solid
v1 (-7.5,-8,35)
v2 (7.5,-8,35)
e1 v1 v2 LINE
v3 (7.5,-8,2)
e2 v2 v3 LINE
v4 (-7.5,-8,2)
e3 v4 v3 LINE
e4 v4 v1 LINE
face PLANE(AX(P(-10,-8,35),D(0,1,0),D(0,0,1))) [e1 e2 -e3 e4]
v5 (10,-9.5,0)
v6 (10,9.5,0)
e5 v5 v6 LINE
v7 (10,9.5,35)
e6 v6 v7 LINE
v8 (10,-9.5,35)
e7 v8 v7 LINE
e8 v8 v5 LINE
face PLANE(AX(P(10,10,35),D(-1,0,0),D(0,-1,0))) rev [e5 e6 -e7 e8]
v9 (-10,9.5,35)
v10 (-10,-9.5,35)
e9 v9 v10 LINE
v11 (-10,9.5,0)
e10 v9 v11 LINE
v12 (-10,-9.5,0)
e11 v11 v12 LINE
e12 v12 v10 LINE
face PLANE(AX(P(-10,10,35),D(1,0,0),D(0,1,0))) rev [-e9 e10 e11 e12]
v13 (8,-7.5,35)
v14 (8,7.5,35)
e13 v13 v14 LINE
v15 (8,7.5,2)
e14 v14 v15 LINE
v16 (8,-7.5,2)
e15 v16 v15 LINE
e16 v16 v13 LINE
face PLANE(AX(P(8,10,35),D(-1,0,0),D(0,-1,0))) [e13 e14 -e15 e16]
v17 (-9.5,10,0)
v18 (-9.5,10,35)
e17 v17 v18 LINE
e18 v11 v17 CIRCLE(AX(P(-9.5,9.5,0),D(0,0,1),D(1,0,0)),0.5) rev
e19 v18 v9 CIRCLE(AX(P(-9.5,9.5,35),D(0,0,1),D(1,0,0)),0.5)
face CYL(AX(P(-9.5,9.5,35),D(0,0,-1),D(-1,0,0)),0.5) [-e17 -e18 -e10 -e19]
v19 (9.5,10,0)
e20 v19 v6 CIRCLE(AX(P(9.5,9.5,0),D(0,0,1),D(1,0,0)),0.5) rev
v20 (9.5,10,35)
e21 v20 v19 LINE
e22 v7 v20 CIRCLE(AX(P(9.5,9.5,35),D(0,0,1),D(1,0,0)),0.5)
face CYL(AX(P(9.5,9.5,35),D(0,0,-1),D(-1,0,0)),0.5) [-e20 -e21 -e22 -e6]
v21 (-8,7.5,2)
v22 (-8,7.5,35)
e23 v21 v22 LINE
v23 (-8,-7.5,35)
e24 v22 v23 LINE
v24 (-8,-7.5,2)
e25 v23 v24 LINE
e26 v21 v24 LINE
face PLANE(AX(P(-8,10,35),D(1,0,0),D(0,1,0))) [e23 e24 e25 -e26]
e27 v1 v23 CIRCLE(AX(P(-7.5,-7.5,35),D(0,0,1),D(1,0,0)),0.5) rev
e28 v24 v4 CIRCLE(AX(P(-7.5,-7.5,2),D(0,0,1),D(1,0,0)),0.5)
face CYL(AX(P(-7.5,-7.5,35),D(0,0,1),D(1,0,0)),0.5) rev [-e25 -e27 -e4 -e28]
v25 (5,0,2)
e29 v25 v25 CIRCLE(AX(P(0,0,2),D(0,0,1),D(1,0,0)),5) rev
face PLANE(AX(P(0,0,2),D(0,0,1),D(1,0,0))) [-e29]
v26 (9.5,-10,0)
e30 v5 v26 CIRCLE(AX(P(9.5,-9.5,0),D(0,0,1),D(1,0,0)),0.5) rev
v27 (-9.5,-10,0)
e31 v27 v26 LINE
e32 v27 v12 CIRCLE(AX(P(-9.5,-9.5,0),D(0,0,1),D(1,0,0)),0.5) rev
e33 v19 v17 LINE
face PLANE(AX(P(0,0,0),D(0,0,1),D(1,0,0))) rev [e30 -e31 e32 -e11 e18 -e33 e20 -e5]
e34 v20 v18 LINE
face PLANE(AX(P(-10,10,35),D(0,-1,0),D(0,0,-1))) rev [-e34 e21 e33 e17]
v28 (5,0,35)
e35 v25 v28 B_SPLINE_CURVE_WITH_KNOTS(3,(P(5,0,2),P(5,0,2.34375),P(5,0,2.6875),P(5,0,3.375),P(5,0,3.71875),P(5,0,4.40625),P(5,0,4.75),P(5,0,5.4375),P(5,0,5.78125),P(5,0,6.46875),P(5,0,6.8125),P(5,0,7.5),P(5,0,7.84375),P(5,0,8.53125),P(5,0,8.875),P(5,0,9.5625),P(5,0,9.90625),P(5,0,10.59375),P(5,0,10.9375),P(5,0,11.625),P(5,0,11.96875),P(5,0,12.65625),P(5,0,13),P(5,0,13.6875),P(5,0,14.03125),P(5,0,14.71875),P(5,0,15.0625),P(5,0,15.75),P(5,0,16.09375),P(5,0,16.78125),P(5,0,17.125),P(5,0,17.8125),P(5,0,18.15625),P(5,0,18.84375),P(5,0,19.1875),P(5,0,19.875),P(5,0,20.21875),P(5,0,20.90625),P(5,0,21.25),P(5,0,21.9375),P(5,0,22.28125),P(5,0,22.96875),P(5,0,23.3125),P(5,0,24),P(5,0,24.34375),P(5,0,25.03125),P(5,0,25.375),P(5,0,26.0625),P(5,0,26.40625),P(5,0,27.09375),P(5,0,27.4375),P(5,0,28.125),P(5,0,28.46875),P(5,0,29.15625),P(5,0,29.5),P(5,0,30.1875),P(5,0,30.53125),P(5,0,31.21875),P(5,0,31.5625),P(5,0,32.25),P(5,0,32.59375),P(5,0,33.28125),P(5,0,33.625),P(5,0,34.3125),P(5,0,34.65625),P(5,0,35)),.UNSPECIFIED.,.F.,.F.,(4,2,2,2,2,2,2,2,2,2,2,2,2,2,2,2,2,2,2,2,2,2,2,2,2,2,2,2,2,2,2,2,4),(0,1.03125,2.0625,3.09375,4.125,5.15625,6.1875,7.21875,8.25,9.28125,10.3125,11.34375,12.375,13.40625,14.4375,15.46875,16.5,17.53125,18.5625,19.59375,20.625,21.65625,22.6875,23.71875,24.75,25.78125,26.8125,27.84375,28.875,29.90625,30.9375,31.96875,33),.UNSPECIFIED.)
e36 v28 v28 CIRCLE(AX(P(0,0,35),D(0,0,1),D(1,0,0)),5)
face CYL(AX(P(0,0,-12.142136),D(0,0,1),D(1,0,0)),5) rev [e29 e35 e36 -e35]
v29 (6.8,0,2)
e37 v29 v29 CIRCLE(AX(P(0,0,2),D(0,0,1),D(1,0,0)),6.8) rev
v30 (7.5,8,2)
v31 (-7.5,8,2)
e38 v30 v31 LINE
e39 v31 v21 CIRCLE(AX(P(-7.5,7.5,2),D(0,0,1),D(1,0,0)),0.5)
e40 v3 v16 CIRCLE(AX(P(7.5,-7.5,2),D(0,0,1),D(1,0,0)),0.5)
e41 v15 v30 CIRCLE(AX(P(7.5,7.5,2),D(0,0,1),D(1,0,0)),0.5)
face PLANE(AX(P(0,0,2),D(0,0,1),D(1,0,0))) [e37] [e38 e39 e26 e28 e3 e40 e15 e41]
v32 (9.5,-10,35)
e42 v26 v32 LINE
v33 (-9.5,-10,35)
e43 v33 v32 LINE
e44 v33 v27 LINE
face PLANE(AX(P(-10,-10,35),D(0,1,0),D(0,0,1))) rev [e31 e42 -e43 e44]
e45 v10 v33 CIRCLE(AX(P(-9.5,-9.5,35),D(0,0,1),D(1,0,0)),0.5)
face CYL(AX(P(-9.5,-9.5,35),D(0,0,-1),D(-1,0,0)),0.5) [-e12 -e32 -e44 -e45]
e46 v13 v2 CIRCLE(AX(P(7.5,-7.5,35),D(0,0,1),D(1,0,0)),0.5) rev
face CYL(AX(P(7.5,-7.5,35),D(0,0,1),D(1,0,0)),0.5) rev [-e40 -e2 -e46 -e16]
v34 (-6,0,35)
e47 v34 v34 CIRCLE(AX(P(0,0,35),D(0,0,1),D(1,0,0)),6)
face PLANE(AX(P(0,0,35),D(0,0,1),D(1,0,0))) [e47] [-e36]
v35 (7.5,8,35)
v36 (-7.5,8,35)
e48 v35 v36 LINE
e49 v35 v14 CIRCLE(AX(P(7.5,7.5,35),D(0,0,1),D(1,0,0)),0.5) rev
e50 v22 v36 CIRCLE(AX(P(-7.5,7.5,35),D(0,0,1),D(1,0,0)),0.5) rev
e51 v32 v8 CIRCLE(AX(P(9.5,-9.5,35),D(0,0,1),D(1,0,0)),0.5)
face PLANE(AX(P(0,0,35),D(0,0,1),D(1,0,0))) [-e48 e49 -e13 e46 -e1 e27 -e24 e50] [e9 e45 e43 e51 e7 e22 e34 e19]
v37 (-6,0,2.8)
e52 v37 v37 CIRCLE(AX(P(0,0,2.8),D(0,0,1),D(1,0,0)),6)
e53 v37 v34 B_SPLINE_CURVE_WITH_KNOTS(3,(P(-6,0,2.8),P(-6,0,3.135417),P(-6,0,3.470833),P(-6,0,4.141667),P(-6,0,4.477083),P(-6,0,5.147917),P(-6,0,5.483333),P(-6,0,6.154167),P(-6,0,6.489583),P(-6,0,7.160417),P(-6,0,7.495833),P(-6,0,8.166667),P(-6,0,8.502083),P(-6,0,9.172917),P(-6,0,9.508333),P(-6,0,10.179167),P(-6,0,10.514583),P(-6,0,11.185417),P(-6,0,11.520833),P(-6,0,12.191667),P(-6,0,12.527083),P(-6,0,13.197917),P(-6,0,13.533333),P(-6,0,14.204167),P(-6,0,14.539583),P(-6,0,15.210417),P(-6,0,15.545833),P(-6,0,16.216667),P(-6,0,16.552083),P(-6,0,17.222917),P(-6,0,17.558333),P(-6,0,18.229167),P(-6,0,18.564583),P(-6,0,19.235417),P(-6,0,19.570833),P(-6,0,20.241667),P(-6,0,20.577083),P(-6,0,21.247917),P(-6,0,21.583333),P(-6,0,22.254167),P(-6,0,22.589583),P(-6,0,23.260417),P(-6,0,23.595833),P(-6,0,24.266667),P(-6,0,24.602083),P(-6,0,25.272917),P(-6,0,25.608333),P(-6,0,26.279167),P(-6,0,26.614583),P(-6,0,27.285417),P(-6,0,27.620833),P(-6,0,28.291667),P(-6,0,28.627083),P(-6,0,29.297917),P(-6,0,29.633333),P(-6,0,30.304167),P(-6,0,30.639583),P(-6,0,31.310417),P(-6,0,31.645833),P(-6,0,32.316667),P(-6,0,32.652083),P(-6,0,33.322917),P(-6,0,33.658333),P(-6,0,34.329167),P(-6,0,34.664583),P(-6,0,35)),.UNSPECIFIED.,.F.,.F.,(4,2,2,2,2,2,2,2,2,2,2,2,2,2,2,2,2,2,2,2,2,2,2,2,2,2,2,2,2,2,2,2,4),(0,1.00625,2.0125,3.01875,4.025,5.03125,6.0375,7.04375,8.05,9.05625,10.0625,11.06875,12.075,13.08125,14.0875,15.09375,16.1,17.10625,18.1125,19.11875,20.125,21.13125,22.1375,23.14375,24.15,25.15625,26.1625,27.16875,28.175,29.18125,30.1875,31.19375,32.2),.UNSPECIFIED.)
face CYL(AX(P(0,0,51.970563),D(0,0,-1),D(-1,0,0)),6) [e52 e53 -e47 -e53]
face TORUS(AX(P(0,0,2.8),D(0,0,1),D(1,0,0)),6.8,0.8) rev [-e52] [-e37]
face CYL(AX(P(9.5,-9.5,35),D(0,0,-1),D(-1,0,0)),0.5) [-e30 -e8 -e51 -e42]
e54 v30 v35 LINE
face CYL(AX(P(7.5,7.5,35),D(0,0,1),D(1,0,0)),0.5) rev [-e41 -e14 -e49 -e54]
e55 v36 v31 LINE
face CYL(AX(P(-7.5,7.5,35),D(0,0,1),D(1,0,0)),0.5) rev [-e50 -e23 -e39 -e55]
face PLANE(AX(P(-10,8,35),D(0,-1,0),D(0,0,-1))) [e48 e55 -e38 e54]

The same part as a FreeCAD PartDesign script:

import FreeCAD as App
import Part
import Sketcher
Q = App.Units.Quantity


def edges_at(feature, points):
    """Names of the edges that pass closest to the given points."""
    edges = feature.Shape.Edges
    near = lambda p: min(range(len(edges)), key=lambda i: edges[i].distToShape(Part.Vertex(*p))[0])
    return sorted({f"Edge{near(p) + 1}" for p in points})


def faces_at(feature, points):
    """Names of the faces that lie closest to the given points."""
    faces = feature.Shape.Faces
    near = lambda p: min(range(len(faces)), key=lambda i: faces[i].distToShape(Part.Vertex(*p))[0])
    return sorted({f"Face{near(p) + 1}" for p in points})

doc = App.newDocument("Part")
body = doc.addObject("PartDesign::Body", "Body")

# Sketch on XY plane
sketch1 = body.newObject("Sketcher::SketchObject", "Sketch")
sketch1.AttachmentSupport = (doc.getObject("XY_Plane"), [""])
sketch1.MapMode = "FlatFace"
sketch1.addGeometry([
    Part.LineSegment(App.Vector(-10, 10, 0), App.Vector(-10, -10, 0)),
    Part.LineSegment(App.Vector(-10, -10, 0), App.Vector(10, -10, 0)),
    Part.LineSegment(App.Vector(10, -10, 0), App.Vector(10, 10, 0)),
    Part.LineSegment(App.Vector(10, 10, 0), App.Vector(-10, 10, 0)),
], False)
sketch1.addConstraint([
    Sketcher.Constraint("Coincident", 0, 2, 1, 1),
    Sketcher.Constraint("Coincident", 1, 2, 2, 1),
    Sketcher.Constraint("Coincident", 2, 2, 3, 1),
    Sketcher.Constraint("Coincident", 3, 2, 0, 1),
    Sketcher.Constraint("Vertical", 0),
    Sketcher.Constraint("Horizontal", 1),
    Sketcher.Constraint("Vertical", 2),
    Sketcher.Constraint("Horizontal", 3),
    Sketcher.Constraint("Symmetric", 0, 2, 2, 2, -1, 1),
    Sketcher.Constraint("Equal", 3, 0),
    Sketcher.Constraint("DistanceX", 1, 1, 1, 2, Q("20 mm")),
])
pad1 = body.newObject("PartDesign::Pad", "Pad")
pad1.Profile = sketch1
pad1.Length = 35
doc.recompute()

thickness = body.newObject("PartDesign::Thickness", "Thickness")
thickness.Base = (pad1, faces_at(pad1, [(0, 0, 35)]))
thickness.Value = 2
thickness.Reversed = True
thickness.Join = "Intersection"
doc.recompute()

fillet = body.newObject("PartDesign::Fillet", "Fillet")
fillet.Base = (thickness, edges_at(thickness, [
    (-8, 8, 18.5),
    (-8, -8, 18.5),
    (8, -8, 18.5),
    (8, 8, 18.5),
    (-10, 10, 17.5),
    (10, 10, 17.5),
    (10, -10, 17.5),
    (-10, -10, 17.5),
]))
fillet.Radius = 0.5

# Sketch on XY plane
sketch2 = body.newObject("Sketcher::SketchObject", "Sketch001")
sketch2.AttachmentSupport = (doc.getObject("XY_Plane"), [""])
sketch2.MapMode = "FlatFace"
sketch2.AttachmentOffset = App.Placement(App.Vector(0, 0, 2), App.Rotation())
sketch2.addGeometry(Part.Circle(App.Vector(0, 0, 0), App.Vector(0, 0, 1), 6), False)
sketch2.addConstraint([
    Sketcher.Constraint("Coincident", 0, 3, -1, 1),
    Sketcher.Constraint("Diameter", 0, Q("12 mm")),
])
pad2 = body.newObject("PartDesign::Pad", "Pad001")
pad2.Profile = sketch2
pad2.Length = 33

# Sketch on XY plane
sketch3 = body.newObject("Sketcher::SketchObject", "Sketch002")
sketch3.AttachmentSupport = (doc.getObject("XY_Plane"), [""])
sketch3.MapMode = "FlatFace"
sketch3.AttachmentOffset = App.Placement(App.Vector(0, 0, 35), App.Rotation())
sketch3.addGeometry(Part.Circle(App.Vector(0, 0, 0), App.Vector(0, 0, 1), 5), False)
sketch3.addConstraint([
    Sketcher.Constraint("Coincident", 0, 3, -1, 1),
    Sketcher.Constraint("Diameter", 0, Q("10 mm")),
])
pocket1 = body.newObject("PartDesign::Pocket", "Pocket")
pocket1.Profile = sketch3
pocket1.Length = 33
doc.recompute()

fillet2 = body.newObject("PartDesign::Fillet", "Fillet001")
fillet2.Base = (pocket1, edges_at(pocket1, [(6, 0, 2)]))
fillet2.Radius = 0.8

doc.recompute()
